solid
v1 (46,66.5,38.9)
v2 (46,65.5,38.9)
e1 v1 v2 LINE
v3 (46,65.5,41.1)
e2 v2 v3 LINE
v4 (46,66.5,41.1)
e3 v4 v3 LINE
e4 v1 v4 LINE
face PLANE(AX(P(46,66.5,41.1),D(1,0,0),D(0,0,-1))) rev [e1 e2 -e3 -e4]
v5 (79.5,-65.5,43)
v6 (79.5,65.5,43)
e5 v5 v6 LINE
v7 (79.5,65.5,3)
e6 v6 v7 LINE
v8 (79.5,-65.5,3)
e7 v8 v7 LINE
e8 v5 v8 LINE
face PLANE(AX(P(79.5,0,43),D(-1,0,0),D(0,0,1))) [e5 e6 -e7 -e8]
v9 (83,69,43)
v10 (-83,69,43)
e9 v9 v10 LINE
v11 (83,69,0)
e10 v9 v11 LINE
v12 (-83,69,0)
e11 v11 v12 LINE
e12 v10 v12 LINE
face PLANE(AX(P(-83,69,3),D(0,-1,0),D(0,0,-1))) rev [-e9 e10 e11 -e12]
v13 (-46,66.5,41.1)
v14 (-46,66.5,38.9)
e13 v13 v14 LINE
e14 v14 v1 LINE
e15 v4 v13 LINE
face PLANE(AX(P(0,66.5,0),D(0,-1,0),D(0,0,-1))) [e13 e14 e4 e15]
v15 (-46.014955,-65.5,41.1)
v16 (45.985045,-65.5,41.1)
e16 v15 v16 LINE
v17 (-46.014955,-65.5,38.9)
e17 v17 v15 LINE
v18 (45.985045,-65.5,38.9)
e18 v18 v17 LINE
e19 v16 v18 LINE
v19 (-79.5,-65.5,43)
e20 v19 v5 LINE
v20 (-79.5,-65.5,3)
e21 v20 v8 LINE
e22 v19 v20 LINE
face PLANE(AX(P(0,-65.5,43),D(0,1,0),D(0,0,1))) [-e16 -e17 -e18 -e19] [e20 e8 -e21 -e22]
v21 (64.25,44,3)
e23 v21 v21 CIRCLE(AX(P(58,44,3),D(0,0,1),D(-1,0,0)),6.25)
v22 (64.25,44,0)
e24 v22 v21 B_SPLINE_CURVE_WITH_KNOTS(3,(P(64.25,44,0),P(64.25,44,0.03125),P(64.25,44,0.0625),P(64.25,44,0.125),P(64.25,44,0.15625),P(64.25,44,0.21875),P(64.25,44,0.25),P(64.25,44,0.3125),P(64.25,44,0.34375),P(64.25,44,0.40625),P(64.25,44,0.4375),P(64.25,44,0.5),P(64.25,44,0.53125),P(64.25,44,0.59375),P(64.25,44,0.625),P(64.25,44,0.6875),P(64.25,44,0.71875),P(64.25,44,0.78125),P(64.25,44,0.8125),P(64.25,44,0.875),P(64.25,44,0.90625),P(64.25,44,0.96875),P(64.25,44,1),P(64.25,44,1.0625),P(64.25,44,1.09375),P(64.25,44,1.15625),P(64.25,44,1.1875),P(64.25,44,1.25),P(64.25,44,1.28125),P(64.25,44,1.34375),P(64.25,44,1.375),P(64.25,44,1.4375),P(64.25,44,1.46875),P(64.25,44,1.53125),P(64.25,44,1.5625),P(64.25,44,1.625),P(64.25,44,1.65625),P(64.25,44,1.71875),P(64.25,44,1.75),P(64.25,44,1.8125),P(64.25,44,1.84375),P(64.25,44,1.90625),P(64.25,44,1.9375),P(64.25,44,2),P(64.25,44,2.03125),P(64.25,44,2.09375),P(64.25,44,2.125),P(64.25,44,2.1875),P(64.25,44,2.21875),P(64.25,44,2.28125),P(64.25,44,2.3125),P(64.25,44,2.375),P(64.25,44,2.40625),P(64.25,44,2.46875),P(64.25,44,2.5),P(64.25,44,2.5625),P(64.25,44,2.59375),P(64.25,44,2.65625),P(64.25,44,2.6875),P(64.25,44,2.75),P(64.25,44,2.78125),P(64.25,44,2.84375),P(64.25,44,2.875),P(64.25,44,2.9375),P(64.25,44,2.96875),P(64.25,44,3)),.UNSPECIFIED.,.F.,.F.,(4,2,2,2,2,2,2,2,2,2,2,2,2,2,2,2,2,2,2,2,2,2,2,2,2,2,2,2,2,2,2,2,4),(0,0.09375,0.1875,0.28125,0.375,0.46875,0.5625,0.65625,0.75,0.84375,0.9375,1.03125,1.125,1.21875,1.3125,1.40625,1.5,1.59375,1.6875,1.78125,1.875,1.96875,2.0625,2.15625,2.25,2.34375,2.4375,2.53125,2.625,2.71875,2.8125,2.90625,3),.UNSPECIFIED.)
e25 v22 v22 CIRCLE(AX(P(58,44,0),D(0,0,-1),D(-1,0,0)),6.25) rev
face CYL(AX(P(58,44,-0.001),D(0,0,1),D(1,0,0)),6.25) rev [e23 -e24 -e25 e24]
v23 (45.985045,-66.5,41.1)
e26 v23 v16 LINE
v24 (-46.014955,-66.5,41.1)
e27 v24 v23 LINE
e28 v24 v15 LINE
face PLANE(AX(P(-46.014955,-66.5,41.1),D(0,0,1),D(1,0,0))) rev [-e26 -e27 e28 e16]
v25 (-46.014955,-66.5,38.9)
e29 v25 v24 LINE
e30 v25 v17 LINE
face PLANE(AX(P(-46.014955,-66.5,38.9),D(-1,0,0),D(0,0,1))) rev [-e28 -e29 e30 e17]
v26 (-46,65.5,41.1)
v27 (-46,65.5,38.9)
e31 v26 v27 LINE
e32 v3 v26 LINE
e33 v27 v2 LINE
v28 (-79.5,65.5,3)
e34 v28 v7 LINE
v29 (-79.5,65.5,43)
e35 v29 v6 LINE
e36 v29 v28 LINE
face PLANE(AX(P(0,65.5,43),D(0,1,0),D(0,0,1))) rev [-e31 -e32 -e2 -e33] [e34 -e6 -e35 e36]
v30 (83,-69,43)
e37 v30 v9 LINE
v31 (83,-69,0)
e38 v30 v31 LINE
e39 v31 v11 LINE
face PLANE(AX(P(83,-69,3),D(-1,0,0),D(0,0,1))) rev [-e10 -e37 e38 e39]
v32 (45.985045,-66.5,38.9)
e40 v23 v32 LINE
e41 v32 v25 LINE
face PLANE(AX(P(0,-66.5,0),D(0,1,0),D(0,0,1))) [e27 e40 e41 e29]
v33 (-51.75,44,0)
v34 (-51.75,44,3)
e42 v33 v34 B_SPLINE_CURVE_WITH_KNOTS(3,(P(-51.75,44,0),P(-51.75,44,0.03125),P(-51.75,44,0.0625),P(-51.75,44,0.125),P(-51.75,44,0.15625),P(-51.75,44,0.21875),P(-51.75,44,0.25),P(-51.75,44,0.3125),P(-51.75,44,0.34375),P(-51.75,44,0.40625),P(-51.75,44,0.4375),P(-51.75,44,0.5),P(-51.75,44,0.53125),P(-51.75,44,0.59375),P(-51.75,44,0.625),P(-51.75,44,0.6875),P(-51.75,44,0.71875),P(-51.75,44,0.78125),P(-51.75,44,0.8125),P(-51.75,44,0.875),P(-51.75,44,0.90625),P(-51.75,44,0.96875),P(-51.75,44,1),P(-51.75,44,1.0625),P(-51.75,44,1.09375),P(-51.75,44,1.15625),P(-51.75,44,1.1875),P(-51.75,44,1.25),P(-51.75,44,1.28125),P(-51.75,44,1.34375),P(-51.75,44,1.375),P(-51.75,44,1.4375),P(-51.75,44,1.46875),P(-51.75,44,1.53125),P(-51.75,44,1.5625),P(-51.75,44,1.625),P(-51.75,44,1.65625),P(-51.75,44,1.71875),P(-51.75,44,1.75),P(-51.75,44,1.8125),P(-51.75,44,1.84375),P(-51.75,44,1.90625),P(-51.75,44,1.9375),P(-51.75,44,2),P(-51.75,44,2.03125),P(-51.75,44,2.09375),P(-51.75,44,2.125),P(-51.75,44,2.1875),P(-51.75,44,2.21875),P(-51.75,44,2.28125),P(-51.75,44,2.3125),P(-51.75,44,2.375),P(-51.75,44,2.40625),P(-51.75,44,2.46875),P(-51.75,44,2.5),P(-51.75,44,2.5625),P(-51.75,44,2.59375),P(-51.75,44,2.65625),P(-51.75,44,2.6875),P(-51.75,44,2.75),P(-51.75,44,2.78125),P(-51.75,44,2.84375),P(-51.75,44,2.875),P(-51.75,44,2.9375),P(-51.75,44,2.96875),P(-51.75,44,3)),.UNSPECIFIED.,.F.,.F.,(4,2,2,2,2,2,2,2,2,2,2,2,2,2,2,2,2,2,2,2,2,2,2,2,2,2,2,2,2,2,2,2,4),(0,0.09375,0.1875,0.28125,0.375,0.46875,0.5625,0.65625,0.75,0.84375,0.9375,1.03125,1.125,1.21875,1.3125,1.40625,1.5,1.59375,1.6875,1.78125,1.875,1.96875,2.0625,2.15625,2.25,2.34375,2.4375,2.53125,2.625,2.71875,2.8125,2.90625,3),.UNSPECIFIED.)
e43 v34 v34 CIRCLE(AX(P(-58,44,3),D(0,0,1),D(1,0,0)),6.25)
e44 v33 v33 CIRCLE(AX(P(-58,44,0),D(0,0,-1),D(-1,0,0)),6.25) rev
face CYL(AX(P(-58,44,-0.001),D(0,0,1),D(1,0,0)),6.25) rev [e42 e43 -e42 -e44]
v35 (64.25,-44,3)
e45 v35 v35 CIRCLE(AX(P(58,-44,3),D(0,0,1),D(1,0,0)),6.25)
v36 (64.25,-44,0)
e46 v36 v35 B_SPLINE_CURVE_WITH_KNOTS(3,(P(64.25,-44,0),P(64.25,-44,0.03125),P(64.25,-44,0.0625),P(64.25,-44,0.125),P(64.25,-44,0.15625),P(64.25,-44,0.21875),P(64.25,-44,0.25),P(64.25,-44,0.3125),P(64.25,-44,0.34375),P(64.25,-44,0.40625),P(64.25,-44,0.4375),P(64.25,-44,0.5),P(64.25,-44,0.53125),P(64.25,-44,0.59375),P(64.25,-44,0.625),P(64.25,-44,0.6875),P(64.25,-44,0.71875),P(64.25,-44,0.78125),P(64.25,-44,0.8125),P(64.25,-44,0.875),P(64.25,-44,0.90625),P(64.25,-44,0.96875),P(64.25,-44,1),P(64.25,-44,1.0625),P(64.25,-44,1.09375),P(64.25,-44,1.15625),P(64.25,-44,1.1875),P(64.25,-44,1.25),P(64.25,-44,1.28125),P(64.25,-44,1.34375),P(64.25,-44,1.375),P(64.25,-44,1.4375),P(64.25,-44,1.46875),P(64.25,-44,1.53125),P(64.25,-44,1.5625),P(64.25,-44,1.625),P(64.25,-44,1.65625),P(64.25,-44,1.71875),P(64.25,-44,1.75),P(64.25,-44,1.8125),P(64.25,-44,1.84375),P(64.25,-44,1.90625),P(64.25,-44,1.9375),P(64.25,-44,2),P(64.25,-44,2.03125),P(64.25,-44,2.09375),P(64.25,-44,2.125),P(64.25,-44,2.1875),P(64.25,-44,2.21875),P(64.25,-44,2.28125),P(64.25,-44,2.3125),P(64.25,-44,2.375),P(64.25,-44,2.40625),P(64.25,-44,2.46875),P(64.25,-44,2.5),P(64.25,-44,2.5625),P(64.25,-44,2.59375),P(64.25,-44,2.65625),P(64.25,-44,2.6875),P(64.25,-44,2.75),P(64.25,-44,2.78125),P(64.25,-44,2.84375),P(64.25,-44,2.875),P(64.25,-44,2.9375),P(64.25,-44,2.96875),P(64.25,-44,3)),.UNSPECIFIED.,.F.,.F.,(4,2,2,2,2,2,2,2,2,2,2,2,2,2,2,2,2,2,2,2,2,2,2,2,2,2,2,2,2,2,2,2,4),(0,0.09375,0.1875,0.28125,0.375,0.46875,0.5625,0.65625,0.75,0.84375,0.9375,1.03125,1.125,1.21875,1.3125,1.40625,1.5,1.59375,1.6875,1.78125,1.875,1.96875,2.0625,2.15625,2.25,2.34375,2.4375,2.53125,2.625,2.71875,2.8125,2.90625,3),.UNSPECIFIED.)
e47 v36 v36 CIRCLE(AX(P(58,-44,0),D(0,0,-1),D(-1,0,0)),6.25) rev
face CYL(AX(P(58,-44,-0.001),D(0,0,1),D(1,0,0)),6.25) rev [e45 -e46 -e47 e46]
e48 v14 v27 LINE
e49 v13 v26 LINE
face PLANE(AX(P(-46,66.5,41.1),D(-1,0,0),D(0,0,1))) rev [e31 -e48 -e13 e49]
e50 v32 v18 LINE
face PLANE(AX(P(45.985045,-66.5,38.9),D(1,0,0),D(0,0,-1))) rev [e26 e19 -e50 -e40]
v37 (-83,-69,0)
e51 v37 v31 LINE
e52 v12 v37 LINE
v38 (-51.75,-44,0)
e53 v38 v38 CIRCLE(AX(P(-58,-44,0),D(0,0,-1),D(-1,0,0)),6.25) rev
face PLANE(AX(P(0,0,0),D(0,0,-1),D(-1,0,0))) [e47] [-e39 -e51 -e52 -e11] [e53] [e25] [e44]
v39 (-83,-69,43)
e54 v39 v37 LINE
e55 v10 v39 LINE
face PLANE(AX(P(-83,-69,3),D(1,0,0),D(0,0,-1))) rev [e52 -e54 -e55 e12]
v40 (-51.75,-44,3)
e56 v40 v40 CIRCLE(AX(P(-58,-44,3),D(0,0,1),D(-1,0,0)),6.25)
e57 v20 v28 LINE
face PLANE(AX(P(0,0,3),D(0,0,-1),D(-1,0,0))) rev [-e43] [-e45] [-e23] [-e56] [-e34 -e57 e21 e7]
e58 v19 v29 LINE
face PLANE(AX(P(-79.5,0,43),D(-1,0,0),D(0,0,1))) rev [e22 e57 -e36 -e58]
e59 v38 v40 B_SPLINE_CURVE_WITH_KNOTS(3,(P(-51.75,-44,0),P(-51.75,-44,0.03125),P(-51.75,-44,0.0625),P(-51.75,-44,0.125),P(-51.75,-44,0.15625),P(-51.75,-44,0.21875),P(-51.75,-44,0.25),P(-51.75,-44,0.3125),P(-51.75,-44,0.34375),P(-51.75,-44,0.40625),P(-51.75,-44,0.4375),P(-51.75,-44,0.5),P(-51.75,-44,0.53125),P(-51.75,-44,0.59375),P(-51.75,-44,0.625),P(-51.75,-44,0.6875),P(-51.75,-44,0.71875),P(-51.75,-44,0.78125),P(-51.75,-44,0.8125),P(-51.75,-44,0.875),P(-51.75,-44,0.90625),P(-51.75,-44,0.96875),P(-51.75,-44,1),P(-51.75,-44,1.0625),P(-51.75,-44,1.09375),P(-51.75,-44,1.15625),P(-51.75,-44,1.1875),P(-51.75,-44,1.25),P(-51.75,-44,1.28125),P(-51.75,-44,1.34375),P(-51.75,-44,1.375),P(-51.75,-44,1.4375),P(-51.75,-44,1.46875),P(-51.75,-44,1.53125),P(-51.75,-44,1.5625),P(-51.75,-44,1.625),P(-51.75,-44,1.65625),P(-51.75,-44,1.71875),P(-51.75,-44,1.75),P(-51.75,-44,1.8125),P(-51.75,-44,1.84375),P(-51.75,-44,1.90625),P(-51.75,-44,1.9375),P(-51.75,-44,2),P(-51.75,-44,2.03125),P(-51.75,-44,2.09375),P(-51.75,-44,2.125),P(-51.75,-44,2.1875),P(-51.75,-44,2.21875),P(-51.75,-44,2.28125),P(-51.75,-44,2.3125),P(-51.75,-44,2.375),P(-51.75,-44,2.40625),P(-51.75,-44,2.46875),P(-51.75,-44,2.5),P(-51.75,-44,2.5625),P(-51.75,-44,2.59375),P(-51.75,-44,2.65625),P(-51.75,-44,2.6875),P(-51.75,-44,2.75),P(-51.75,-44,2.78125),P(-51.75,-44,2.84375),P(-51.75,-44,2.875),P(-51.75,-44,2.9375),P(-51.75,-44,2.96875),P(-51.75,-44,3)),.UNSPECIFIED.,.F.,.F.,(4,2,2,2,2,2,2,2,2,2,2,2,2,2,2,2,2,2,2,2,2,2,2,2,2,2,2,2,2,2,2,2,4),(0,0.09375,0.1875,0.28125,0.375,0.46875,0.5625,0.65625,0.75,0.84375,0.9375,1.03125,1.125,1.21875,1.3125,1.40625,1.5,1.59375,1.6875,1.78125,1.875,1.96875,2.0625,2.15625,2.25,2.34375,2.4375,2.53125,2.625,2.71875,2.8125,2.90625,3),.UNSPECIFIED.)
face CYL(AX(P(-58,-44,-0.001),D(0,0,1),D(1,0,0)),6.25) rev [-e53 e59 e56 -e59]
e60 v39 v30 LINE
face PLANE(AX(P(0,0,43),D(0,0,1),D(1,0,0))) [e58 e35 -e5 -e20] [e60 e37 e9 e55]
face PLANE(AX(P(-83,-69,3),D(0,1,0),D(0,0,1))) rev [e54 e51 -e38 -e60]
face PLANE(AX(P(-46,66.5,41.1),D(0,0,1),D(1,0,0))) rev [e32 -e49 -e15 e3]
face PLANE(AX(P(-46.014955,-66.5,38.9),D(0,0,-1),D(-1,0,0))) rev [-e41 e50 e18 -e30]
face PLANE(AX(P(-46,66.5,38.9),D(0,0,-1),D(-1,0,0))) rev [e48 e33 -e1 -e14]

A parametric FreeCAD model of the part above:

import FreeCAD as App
import Part
import Sketcher
Q = App.Units.Quantity

doc = App.newDocument("Part")
body = doc.addObject("PartDesign::Body", "Body")

# Sketch on XY plane
sketch1 = body.newObject("Sketcher::SketchObject", "Sketch")
sketch1.AttachmentSupport = (doc.getObject("XY_Plane"), [""])
sketch1.MapMode = "FlatFace"
sketch1.addGeometry([
    Part.LineSegment(App.Vector(-83, 69, 0), App.Vector(-83, -69, 0)),
    Part.LineSegment(App.Vector(-83, -69, 0), App.Vector(83, -69, 0)),
    Part.LineSegment(App.Vector(83, -69, 0), App.Vector(83, 69, 0)),
    Part.LineSegment(App.Vector(83, 69, 0), App.Vector(-83, 69, 0)),
], False)
sketch1.addConstraint([
    Sketcher.Constraint("Coincident", 0, 2, 1, 1),
    Sketcher.Constraint("Coincident", 1, 2, 2, 1),
    Sketcher.Constraint("Coincident", 2, 2, 3, 1),
    Sketcher.Constraint("Coincident", 3, 2, 0, 1),
    Sketcher.Constraint("Vertical", 0),
    Sketcher.Constraint("Horizontal", 1),
    Sketcher.Constraint("Vertical", 2),
    Sketcher.Constraint("Horizontal", 3),
    Sketcher.Constraint("Symmetric", 0, 2, 2, 2, -1, 1),
    Sketcher.Constraint("DistanceX", 1, 1, 1, 2, Q("166 mm")),
    Sketcher.Constraint("DistanceY", 0, 2, 0, 1, Q("138 mm")),
])
pad1 = body.newObject("PartDesign::Pad", "Pad")
pad1.Profile = sketch1
pad1.Length = 3

# Sketch on XY plane
sketch2 = body.newObject("Sketcher::SketchObject", "Sketch001")
sketch2.AttachmentSupport = (doc.getObject("XY_Plane"), [""])
sketch2.MapMode = "FlatFace"
sketch2.AttachmentOffset = App.Placement(App.Vector(0, 0, 3), App.Rotation())
sketch2.addGeometry([
    Part.LineSegment(App.Vector(-83, 69, 0), App.Vector(-83, -69, 0)),  # 0
    Part.LineSegment(App.Vector(-83, -69, 0), App.Vector(83, -69, 0)),  # 1
    Part.LineSegment(App.Vector(83, -69, 0), App.Vector(83, 69, 0)),  # 2
    Part.LineSegment(App.Vector(83, 69, 0), App.Vector(-83, 69, 0)),  # 3
    Part.LineSegment(App.Vector(80, -66, 0), App.Vector(-80, -66, 0)),  # 4
    Part.LineSegment(App.Vector(-80, -66, 0), App.Vector(-80, 66, 0)),  # 5
    Part.LineSegment(App.Vector(-80, 66, 0), App.Vector(80, 66, 0)),  # 6
    Part.LineSegment(App.Vector(80, 66, 0), App.Vector(80, -66, 0)),  # 7
], False)
sketch2.addConstraint([
    Sketcher.Constraint("Coincident", 0, 2, 1, 1),
    Sketcher.Constraint("Coincident", 1, 2, 2, 1),
    Sketcher.Constraint("Coincident", 2, 2, 3, 1),
    Sketcher.Constraint("Coincident", 3, 2, 0, 1),
    Sketcher.Constraint("Coincident", 4, 2, 5, 1),
    Sketcher.Constraint("Coincident", 5, 2, 6, 1),
    Sketcher.Constraint("Coincident", 6, 2, 7, 1),
    Sketcher.Constraint("Coincident", 7, 2, 4, 1),
    Sketcher.Constraint("Vertical", 0),
    Sketcher.Constraint("Horizontal", 1),
    Sketcher.Constraint("Vertical", 2),
    Sketcher.Constraint("Horizontal", 3),
    Sketcher.Constraint("Horizontal", 4),
    Sketcher.Constraint("Vertical", 5),
    Sketcher.Constraint("Horizontal", 6),
    Sketcher.Constraint("Vertical", 7),
    Sketcher.Constraint("Symmetric", 0, 2, 2, 2, -1, 1),
    Sketcher.Constraint("Symmetric", 4, 2, 6, 2, -1, 1),
    Sketcher.Constraint("DistanceX", 1, 1, 1, 2, Q("166 mm")),
    Sketcher.Constraint("DistanceX", 4, 2, 4, 1, Q("159 mm")),
    Sketcher.Constraint("DistanceY", 0, 2, 0, 1, Q("138 mm")),
    Sketcher.Constraint("DistanceY", 5, 1, 5, 2, Q("131 mm")),
])
pad2 = body.newObject("PartDesign::Pad", "Pad001")
pad2.Profile = sketch2
pad2.Length = 40

# Sketch on XY plane
sketch3 = body.newObject("Sketcher::SketchObject", "Sketch002")
sketch3.AttachmentSupport = (doc.getObject("XY_Plane"), [""])
sketch3.MapMode = "FlatFace"
sketch3.AttachmentOffset = App.Placement(App.Vector(0, 0, 3), App.Rotation())
sketch3.addGeometry(Part.Circle(App.Vector(-58, 44, 0), App.Vector(0, 0, 1), 6), False)
sketch3.addConstraint([
    Sketcher.Constraint("Diameter", 0, Q("12.5 mm")),
    Sketcher.Constraint("DistanceX", 0, 3, -1, 1, Q("58 mm")),
    Sketcher.Constraint("DistanceY", -1, 1, 0, 3, Q("44 mm")),
])
pocket1 = body.newObject("PartDesign::Pocket", "Pocket")
pocket1.Profile = sketch3
pocket1.Type = "UpToFirst"

# Sketch on XY plane
sketch4 = body.newObject("Sketcher::SketchObject", "Sketch003")
sketch4.AttachmentSupport = (doc.getObject("XY_Plane"), [""])
sketch4.MapMode = "FlatFace"
sketch4.AttachmentOffset = App.Placement(App.Vector(0, 0, 3), App.Rotation())
sketch4.addGeometry(Part.Circle(App.Vector(-58, -44, 0), App.Vector(0, 0, 1), 6), False)
sketch4.addConstraint([
    Sketcher.Constraint("Diameter", 0, Q("12.5 mm")),
    Sketcher.Constraint("DistanceX", 0, 3, -1, 1, Q("58 mm")),
    Sketcher.Constraint("DistanceY", 0, 3, -1, 1, Q("44 mm")),
])
pocket2 = body.newObject("PartDesign::Pocket", "Pocket001")
pocket2.Profile = sketch4
pocket2.Type = "UpToFirst"

# Sketch on XY plane
sketch5 = body.newObject("Sketcher::SketchObject", "Sketch004")
sketch5.AttachmentSupport = (doc.getObject("XY_Plane"), [""])
sketch5.MapMode = "FlatFace"
sketch5.AttachmentOffset = App.Placement(App.Vector(0, 0, 3), App.Rotation())
sketch5.addGeometry(Part.Circle(App.Vector(58, -44, 0), App.Vector(0, 0, 1), 6), False)
sketch5.addConstraint([
    Sketcher.Constraint("Diameter", 0, Q("12.5 mm")),
    Sketcher.Constraint("DistanceX", -1, 1, 0, 3, Q("58 mm")),
    Sketcher.Constraint("DistanceY", 0, 3, -1, 1, Q("44 mm")),
])
pocket3 = body.newObject("PartDesign::Pocket", "Pocket002")
pocket3.Profile = sketch5
pocket3.Type = "UpToFirst"

# Sketch on XY plane
sketch6 = body.newObject("Sketcher::SketchObject", "Sketch005")
sketch6.AttachmentSupport = (doc.getObject("XY_Plane"), [""])
sketch6.MapMode = "FlatFace"
sketch6.AttachmentOffset = App.Placement(App.Vector(0, 0, 3), App.Rotation())
sketch6.addGeometry(Part.Circle(App.Vector(58, 44, 0), App.Vector(0, 0, 1), 6), False)
sketch6.addConstraint([
    Sketcher.Constraint("Diameter", 0, Q("12.5 mm")),
    Sketcher.Constraint("DistanceX", -1, 1, 0, 3, Q("58 mm")),
    Sketcher.Constraint("DistanceY", -1, 1, 0, 3, Q("44 mm")),
])
pocket4 = body.newObject("PartDesign::Pocket", "Pocket003")
pocket4.Profile = sketch6
pocket4.Type = "UpToFirst"

# Sketch on XZ plane
sketch7 = body.newObject("Sketcher::SketchObject", "Sketch006")
sketch7.AttachmentSupport = (doc.getObject("XZ_Plane"), [""])
sketch7.MapMode = "FlatFace"
sketch7.AttachmentOffset = App.Placement(App.Vector(0, 0, -65.5), App.Rotation())
sketch7.addGeometry([
    Part.LineSegment(App.Vector(-46, 41.1, 0), App.Vector(-46, 38.9, 0)),
    Part.LineSegment(App.Vector(-46, 38.9, 0), App.Vector(46, 38.9, 0)),
    Part.LineSegment(App.Vector(46, 38.9, 0), App.Vector(46, 41.1, 0)),
    Part.LineSegment(App.Vector(46, 41.1, 0), App.Vector(-46, 41.1, 0)),
], False)
sketch7.addConstraint([
    Sketcher.Constraint("Coincident", 0, 2, 1, 1),
    Sketcher.Constraint("Coincident", 1, 2, 2, 1),
    Sketcher.Constraint("Coincident", 2, 2, 3, 1),
    Sketcher.Constraint("Coincident", 3, 2, 0, 1),
    Sketcher.Constraint("Vertical", 0),
    Sketcher.Constraint("Horizontal", 1),
    Sketcher.Constraint("Vertical", 2),
    Sketcher.Constraint("Horizontal", 3),
    Sketcher.Constraint("DistanceX", 1, 1, 1, 2, Q("92 mm")),
    Sketcher.Constraint("DistanceY", 0, 2, 0, 1, Q("2.2 mm")),
    Sketcher.Constraint("DistanceX", 0, 2, -1, 1, Q("46 mm")),
    Sketcher.Constraint("DistanceY", -1, 1, 0, 2, Q("38.9 mm")),
])
pocket5 = body.newObject("PartDesign::Pocket", "Pocket004")
pocket5.Profile = sketch7
pocket5.Length = 1

# Sketch on XZ plane
sketch8 = body.newObject("Sketcher::SketchObject", "Sketch007")
sketch8.AttachmentSupport = (doc.getObject("XZ_Plane"), [""])
sketch8.MapMode = "FlatFace"
sketch8.AttachmentOffset = App.Placement(App.Vector(0, 0, 65.5), App.Rotation())
sketch8.addGeometry([
    Part.LineSegment(App.Vector(-46, 38.9, 0), App.Vector(-46, 41.1, 0)),
    Part.LineSegment(App.Vector(-46, 41.1, 0), App.Vector(46, 41.1, 0)),
    Part.LineSegment(App.Vector(46, 41.1, 0), App.Vector(46, 38.9, 0)),
    Part.LineSegment(App.Vector(46, 38.9, 0), App.Vector(-46, 38.9, 0)),
], False)
sketch8.addConstraint([
    Sketcher.Constraint("Coincident", 0, 2, 1, 1),
    Sketcher.Constraint("Coincident", 1, 2, 2, 1),
    Sketcher.Constraint("Coincident", 2, 2, 3, 1),
    Sketcher.Constraint("Coincident", 3, 2, 0, 1),
    Sketcher.Constraint("Vertical", 0),
    Sketcher.Constraint("Horizontal", 1),
    Sketcher.Constraint("Vertical", 2),
    Sketcher.Constraint("Horizontal", 3),
    Sketcher.Constraint("DistanceX", 1, 1, 1, 2, Q("92 mm")),
    Sketcher.Constraint("DistanceY", 0, 1, 0, 2, Q("2.2 mm")),
    Sketcher.Constraint("DistanceY", -1, 1, 0, 2, Q("41.1 mm")),
    Sketcher.Constraint("DistanceX", 0, 2, -1, 1, Q("46.014955 mm")),
])
pocket6 = body.newObject("PartDesign::Pocket", "Pocket005")
pocket6.Profile = sketch8
pocket6.Length = 1
pocket6.Reversed = True

doc.recompute()
